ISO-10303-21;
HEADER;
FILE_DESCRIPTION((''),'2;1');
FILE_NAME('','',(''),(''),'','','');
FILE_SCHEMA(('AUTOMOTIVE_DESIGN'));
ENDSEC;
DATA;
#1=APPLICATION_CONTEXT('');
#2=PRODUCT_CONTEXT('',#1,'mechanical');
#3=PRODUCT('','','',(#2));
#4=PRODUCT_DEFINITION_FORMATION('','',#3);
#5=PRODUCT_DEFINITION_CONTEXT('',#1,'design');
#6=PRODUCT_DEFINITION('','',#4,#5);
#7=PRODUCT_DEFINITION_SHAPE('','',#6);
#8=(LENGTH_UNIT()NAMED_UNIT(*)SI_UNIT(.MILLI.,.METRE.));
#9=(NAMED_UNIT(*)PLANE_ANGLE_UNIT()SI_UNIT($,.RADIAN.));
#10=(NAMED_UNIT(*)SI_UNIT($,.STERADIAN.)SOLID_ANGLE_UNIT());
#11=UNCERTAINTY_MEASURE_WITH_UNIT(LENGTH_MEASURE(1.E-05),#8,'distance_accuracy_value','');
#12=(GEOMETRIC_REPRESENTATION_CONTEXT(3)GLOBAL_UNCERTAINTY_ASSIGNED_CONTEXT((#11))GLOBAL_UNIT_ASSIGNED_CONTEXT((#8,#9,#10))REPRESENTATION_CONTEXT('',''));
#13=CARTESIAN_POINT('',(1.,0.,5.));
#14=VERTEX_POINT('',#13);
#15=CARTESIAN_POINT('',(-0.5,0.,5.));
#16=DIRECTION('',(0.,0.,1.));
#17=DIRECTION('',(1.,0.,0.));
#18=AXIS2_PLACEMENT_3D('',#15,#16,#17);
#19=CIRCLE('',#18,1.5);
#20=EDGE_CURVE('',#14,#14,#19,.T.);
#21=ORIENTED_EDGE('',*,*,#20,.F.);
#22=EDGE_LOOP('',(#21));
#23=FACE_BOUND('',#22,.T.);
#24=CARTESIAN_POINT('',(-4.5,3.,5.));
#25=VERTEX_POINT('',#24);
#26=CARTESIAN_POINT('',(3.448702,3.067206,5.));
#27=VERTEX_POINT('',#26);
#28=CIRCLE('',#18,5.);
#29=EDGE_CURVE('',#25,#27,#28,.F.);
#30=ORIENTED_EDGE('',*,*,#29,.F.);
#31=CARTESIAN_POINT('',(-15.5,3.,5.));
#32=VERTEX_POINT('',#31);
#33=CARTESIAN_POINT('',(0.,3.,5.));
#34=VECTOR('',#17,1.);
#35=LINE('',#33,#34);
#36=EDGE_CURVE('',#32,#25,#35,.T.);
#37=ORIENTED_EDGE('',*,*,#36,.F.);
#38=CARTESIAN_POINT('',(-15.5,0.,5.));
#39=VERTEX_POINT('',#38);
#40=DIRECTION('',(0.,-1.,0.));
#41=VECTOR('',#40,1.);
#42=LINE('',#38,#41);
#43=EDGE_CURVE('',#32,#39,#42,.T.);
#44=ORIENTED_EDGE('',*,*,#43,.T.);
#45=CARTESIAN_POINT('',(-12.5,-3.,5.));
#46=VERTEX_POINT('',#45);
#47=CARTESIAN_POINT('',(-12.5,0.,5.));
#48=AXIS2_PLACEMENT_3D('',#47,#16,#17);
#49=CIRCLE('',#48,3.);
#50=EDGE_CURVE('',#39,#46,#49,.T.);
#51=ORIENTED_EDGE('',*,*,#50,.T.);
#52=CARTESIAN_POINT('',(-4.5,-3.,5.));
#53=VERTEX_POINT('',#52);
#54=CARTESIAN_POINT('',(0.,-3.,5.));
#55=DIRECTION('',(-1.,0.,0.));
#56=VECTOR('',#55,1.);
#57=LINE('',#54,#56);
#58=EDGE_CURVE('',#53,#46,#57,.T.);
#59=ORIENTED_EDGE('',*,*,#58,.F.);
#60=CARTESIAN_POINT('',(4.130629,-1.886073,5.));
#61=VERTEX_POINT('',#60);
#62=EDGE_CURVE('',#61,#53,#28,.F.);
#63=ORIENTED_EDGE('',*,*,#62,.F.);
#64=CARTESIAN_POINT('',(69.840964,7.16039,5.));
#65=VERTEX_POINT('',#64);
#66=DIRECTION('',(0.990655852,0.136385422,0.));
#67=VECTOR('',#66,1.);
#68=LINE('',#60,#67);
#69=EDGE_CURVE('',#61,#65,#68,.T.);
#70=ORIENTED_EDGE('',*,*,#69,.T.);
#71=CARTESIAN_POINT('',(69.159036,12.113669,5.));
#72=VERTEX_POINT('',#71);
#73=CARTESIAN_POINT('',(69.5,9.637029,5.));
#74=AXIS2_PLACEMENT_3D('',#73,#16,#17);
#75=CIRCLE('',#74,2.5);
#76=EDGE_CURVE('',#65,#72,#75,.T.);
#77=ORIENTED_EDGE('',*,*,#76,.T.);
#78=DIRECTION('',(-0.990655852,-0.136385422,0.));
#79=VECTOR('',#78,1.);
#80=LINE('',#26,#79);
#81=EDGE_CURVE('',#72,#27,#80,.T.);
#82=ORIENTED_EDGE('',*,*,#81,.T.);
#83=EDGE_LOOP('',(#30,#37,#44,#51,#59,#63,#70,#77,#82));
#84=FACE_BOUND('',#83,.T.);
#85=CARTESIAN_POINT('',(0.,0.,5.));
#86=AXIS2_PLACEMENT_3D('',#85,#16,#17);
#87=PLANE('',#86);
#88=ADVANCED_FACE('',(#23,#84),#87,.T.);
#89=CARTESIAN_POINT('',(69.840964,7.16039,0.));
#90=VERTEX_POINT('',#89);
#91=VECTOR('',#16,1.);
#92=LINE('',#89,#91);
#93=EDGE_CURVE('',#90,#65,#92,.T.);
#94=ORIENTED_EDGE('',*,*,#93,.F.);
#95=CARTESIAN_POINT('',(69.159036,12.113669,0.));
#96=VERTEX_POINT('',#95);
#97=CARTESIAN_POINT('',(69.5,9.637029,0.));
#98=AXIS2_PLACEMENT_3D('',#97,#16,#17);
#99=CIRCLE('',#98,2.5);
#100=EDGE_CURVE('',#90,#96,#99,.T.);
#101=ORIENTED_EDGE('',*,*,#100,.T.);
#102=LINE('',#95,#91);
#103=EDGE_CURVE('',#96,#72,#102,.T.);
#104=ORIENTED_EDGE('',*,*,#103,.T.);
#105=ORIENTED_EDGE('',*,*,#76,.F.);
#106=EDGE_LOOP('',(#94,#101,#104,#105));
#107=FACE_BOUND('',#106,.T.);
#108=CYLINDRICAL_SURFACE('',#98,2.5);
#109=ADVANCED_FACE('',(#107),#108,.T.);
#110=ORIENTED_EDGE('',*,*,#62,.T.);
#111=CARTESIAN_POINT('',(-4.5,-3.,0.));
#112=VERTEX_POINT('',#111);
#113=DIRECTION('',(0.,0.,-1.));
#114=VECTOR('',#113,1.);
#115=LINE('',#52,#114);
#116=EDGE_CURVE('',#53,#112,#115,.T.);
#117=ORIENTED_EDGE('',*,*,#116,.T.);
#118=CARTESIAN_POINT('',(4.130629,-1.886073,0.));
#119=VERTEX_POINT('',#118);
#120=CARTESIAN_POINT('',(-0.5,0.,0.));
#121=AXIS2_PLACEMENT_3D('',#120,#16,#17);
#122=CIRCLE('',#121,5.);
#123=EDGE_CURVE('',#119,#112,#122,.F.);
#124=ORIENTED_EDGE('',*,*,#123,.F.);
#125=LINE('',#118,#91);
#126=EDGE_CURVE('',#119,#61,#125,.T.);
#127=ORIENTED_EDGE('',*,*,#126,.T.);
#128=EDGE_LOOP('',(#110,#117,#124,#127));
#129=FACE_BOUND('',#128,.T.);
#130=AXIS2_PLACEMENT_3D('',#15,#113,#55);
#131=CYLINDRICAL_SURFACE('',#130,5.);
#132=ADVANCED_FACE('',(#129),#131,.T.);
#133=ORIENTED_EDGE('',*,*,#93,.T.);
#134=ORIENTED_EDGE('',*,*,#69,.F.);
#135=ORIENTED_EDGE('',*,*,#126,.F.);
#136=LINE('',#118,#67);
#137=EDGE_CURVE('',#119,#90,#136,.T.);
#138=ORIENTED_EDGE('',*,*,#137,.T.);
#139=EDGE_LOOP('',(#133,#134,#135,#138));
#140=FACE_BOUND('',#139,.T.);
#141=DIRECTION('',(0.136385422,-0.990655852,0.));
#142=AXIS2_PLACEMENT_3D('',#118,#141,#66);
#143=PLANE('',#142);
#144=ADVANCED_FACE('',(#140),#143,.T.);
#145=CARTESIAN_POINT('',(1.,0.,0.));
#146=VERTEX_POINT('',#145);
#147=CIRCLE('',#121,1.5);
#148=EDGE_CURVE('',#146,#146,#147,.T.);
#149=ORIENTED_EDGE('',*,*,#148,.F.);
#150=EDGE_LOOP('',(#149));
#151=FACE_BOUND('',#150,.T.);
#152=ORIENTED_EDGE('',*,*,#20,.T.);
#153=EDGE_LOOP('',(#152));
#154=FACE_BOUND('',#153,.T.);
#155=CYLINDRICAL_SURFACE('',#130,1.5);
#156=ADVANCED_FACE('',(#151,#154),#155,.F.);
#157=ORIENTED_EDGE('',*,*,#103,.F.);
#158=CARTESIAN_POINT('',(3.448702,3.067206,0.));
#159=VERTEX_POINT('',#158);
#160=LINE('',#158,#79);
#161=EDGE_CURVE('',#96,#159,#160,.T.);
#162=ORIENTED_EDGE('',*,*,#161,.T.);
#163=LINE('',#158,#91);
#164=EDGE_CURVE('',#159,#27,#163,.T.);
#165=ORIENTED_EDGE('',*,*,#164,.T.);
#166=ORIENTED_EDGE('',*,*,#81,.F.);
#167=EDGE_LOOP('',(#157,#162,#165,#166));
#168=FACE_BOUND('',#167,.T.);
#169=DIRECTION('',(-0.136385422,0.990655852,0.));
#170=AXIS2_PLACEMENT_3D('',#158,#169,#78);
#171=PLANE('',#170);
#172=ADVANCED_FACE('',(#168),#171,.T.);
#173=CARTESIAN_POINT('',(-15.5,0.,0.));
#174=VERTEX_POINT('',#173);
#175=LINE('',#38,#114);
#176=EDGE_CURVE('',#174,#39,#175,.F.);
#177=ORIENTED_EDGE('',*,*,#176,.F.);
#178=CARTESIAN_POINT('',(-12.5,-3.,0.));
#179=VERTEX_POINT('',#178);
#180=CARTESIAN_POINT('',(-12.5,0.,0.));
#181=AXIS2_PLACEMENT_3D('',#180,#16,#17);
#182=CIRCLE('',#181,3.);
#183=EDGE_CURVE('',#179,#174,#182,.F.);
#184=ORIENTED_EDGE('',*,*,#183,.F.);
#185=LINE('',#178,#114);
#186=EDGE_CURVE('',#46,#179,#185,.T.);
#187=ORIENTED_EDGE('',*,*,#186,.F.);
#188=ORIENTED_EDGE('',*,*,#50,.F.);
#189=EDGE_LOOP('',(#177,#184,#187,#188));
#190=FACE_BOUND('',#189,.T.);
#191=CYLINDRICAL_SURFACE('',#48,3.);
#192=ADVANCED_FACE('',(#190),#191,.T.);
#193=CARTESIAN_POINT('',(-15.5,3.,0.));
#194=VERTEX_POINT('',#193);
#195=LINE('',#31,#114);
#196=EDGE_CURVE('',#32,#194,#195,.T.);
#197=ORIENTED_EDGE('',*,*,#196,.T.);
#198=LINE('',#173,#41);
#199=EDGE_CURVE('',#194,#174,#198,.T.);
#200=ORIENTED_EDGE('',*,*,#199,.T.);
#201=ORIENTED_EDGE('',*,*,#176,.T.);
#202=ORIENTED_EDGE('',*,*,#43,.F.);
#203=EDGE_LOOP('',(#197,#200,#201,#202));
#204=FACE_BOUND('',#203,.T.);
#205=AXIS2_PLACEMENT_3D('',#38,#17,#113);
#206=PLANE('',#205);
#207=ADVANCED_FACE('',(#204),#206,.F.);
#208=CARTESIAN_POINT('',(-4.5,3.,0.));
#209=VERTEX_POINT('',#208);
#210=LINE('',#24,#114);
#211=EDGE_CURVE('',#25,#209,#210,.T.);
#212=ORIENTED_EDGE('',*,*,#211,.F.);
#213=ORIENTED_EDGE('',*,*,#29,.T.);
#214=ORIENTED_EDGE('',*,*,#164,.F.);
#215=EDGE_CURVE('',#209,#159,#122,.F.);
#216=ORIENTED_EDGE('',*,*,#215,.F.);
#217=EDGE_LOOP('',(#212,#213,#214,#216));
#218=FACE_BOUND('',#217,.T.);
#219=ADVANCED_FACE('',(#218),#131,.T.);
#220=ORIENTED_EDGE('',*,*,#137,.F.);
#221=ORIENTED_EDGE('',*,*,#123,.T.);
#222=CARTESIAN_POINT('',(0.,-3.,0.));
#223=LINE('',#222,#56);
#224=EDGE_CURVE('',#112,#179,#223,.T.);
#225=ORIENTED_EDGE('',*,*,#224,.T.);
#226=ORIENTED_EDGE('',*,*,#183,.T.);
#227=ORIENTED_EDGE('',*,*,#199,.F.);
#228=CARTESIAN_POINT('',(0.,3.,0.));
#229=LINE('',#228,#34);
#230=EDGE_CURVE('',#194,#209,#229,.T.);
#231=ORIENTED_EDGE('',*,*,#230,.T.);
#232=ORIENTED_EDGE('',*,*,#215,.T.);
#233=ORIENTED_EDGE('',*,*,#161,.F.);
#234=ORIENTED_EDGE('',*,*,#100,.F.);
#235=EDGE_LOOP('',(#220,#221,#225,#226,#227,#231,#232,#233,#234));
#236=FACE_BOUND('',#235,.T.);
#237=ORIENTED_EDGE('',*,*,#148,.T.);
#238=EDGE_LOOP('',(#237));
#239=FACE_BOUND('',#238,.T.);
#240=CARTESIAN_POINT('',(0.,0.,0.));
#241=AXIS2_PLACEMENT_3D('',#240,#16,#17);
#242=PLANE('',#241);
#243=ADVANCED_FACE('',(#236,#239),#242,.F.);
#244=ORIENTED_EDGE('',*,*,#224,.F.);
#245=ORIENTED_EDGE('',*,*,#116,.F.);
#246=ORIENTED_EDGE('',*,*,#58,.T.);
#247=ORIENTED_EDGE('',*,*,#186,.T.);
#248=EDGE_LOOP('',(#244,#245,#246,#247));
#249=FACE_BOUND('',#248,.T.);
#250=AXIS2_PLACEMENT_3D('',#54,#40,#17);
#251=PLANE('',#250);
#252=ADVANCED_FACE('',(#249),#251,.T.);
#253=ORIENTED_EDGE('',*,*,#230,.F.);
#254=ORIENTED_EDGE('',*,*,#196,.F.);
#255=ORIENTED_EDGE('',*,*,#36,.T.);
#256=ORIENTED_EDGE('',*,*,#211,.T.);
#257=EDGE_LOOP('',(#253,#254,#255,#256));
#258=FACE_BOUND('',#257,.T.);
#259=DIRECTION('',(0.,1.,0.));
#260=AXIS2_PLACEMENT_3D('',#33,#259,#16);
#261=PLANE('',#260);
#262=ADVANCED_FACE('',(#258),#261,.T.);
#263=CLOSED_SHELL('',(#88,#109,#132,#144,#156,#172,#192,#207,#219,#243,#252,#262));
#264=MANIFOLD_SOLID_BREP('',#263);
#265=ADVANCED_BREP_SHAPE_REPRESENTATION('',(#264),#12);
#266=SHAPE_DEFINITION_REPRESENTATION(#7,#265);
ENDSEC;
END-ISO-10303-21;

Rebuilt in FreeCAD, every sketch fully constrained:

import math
import FreeCAD as App
import Part
import Sketcher

V = App.Vector
Q = App.Units.Quantity


def edges_at(feature, points):
    """Names of the edges that pass closest to the given points."""
    edges = feature.Shape.Edges
    near = lambda p: min(range(len(edges)), key=lambda i: edges[i].distToShape(Part.Vertex(*p))[0])
    return sorted({f"Edge{near(p) + 1}" for p in points})

doc = App.newDocument("Part")
body = doc.addObject("PartDesign::Body", "Body")

# Sketch on XY plane
sketch1 = body.newObject("Sketcher::SketchObject", "Sketch")
sketch1.AttachmentSupport = (doc.getObject("XY_Plane"), [""])
sketch1.MapMode = "FlatFace"
sketch1.addGeometry([
    Part.LineSegment(V(-15.5, -3, 0), V(-4.5, -3, 0)),  # 0
    Part.ArcOfCircle(Part.Circle(V(-0.5, 0, 0), V(0, 0, 1), 5), math.radians(-143), math.radians(143)),  # 1
    Part.LineSegment(V(-4.5, 3, 0), V(-15.5, 3, 0)),  # 2
    Part.LineSegment(V(-15.5, 3, 0), V(-15.5, -3, 0)),  # 3
    Part.Circle(V(-0.5, 0, 0), V(0, 0, 1), 1.5),  # 4
], False)
sketch1.addConstraint([
    Sketcher.Constraint("Coincident", 0, 2, 1, 1),
    Sketcher.Constraint("Coincident", 1, 2, 2, 1),
    Sketcher.Constraint("Coincident", 2, 2, 3, 1),
    Sketcher.Constraint("Coincident", 3, 2, 0, 1),
    Sketcher.Constraint("Horizontal", 0),
    Sketcher.Constraint("Horizontal", 2),
    Sketcher.Constraint("Vertical", 3),
    Sketcher.Constraint("Coincident", 4, 3, 1, 3),
    Sketcher.Constraint("Symmetric", 0, 2, 1, 2, -1),
    Sketcher.Constraint("Diameter", 4, Q("3 mm")),
    Sketcher.Constraint("Radius", 1, Q("5 mm")),
    Sketcher.Constraint("DistanceX", 0, 1, 0, 2, Q("11 mm")),
    Sketcher.Constraint("DistanceY", 3, 2, 3, 1, Q("6 mm")),
    Sketcher.Constraint("DistanceX", 1, 3, -1, 1, Q("0.5 mm")),
])
pad1 = body.newObject("PartDesign::Pad", "Pad")
pad1.Profile = sketch1
pad1.Length = 5
doc.recompute()

fillet = body.newObject("PartDesign::Fillet", "Fillet")
fillet.Base = (pad1, edges_at(pad1, [(-15.5, -3, 2.5)]))
fillet.Radius = 3

# Sketch on XY plane
sketch2 = body.newObject("Sketcher::SketchObject", "Sketch001")
sketch2.AttachmentSupport = (doc.getObject("XY_Plane"), [""])
sketch2.MapMode = "FlatFace"
sketch2.addGeometry([
    Part.LineSegment(V(4.1, -1.9, 0), V(69.8, 7.2, 0)),
    Part.ArcOfCircle(Part.Circle(V(69.5, 9.6, 0), V(0, 0, 1), 2.5), math.radians(-82), math.radians(98)),
    Part.LineSegment(V(69.2, 12.1, 0), V(3.4, 3.1, 0)),
    Part.ArcOfCircle(Part.Circle(V(-0.5, 0, 0), V(0, 0, 1), 5), math.radians(-22), math.radians(38)),
], False)
sketch2.addConstraint([
    Sketcher.Constraint("Tangent", 0, 2, 1, 1),
    Sketcher.Constraint("Tangent", 1, 2, 2, 1),
    Sketcher.Constraint("Coincident", 2, 2, 3, 2),
    Sketcher.Constraint("Coincident", 3, 1, 0, 1),
    Sketcher.Constraint("PointOnObject", 3, 3, -1),
    Sketcher.Constraint("Parallel", 0, 2),
    Sketcher.Constraint("Equal", 0, 2),
    Sketcher.Constraint("Radius", 3, Q("5 mm")),
    Sketcher.Constraint("Radius", 1, Q("2.5 mm")),
    Sketcher.Constraint("DistanceX", 3, 3, 1, 3, Q("70 mm")),
    Sketcher.Constraint("DistanceX", -1, 1, 1, 3, Q("69.5 mm")),
    Sketcher.Constraint("DistanceY", -1, 1, 1, 3, Q("9.637029 mm")),
])
pad2 = body.newObject("PartDesign::Pad", "Pad001")
pad2.Profile = sketch2
pad2.Length = 5

doc.recompute()
